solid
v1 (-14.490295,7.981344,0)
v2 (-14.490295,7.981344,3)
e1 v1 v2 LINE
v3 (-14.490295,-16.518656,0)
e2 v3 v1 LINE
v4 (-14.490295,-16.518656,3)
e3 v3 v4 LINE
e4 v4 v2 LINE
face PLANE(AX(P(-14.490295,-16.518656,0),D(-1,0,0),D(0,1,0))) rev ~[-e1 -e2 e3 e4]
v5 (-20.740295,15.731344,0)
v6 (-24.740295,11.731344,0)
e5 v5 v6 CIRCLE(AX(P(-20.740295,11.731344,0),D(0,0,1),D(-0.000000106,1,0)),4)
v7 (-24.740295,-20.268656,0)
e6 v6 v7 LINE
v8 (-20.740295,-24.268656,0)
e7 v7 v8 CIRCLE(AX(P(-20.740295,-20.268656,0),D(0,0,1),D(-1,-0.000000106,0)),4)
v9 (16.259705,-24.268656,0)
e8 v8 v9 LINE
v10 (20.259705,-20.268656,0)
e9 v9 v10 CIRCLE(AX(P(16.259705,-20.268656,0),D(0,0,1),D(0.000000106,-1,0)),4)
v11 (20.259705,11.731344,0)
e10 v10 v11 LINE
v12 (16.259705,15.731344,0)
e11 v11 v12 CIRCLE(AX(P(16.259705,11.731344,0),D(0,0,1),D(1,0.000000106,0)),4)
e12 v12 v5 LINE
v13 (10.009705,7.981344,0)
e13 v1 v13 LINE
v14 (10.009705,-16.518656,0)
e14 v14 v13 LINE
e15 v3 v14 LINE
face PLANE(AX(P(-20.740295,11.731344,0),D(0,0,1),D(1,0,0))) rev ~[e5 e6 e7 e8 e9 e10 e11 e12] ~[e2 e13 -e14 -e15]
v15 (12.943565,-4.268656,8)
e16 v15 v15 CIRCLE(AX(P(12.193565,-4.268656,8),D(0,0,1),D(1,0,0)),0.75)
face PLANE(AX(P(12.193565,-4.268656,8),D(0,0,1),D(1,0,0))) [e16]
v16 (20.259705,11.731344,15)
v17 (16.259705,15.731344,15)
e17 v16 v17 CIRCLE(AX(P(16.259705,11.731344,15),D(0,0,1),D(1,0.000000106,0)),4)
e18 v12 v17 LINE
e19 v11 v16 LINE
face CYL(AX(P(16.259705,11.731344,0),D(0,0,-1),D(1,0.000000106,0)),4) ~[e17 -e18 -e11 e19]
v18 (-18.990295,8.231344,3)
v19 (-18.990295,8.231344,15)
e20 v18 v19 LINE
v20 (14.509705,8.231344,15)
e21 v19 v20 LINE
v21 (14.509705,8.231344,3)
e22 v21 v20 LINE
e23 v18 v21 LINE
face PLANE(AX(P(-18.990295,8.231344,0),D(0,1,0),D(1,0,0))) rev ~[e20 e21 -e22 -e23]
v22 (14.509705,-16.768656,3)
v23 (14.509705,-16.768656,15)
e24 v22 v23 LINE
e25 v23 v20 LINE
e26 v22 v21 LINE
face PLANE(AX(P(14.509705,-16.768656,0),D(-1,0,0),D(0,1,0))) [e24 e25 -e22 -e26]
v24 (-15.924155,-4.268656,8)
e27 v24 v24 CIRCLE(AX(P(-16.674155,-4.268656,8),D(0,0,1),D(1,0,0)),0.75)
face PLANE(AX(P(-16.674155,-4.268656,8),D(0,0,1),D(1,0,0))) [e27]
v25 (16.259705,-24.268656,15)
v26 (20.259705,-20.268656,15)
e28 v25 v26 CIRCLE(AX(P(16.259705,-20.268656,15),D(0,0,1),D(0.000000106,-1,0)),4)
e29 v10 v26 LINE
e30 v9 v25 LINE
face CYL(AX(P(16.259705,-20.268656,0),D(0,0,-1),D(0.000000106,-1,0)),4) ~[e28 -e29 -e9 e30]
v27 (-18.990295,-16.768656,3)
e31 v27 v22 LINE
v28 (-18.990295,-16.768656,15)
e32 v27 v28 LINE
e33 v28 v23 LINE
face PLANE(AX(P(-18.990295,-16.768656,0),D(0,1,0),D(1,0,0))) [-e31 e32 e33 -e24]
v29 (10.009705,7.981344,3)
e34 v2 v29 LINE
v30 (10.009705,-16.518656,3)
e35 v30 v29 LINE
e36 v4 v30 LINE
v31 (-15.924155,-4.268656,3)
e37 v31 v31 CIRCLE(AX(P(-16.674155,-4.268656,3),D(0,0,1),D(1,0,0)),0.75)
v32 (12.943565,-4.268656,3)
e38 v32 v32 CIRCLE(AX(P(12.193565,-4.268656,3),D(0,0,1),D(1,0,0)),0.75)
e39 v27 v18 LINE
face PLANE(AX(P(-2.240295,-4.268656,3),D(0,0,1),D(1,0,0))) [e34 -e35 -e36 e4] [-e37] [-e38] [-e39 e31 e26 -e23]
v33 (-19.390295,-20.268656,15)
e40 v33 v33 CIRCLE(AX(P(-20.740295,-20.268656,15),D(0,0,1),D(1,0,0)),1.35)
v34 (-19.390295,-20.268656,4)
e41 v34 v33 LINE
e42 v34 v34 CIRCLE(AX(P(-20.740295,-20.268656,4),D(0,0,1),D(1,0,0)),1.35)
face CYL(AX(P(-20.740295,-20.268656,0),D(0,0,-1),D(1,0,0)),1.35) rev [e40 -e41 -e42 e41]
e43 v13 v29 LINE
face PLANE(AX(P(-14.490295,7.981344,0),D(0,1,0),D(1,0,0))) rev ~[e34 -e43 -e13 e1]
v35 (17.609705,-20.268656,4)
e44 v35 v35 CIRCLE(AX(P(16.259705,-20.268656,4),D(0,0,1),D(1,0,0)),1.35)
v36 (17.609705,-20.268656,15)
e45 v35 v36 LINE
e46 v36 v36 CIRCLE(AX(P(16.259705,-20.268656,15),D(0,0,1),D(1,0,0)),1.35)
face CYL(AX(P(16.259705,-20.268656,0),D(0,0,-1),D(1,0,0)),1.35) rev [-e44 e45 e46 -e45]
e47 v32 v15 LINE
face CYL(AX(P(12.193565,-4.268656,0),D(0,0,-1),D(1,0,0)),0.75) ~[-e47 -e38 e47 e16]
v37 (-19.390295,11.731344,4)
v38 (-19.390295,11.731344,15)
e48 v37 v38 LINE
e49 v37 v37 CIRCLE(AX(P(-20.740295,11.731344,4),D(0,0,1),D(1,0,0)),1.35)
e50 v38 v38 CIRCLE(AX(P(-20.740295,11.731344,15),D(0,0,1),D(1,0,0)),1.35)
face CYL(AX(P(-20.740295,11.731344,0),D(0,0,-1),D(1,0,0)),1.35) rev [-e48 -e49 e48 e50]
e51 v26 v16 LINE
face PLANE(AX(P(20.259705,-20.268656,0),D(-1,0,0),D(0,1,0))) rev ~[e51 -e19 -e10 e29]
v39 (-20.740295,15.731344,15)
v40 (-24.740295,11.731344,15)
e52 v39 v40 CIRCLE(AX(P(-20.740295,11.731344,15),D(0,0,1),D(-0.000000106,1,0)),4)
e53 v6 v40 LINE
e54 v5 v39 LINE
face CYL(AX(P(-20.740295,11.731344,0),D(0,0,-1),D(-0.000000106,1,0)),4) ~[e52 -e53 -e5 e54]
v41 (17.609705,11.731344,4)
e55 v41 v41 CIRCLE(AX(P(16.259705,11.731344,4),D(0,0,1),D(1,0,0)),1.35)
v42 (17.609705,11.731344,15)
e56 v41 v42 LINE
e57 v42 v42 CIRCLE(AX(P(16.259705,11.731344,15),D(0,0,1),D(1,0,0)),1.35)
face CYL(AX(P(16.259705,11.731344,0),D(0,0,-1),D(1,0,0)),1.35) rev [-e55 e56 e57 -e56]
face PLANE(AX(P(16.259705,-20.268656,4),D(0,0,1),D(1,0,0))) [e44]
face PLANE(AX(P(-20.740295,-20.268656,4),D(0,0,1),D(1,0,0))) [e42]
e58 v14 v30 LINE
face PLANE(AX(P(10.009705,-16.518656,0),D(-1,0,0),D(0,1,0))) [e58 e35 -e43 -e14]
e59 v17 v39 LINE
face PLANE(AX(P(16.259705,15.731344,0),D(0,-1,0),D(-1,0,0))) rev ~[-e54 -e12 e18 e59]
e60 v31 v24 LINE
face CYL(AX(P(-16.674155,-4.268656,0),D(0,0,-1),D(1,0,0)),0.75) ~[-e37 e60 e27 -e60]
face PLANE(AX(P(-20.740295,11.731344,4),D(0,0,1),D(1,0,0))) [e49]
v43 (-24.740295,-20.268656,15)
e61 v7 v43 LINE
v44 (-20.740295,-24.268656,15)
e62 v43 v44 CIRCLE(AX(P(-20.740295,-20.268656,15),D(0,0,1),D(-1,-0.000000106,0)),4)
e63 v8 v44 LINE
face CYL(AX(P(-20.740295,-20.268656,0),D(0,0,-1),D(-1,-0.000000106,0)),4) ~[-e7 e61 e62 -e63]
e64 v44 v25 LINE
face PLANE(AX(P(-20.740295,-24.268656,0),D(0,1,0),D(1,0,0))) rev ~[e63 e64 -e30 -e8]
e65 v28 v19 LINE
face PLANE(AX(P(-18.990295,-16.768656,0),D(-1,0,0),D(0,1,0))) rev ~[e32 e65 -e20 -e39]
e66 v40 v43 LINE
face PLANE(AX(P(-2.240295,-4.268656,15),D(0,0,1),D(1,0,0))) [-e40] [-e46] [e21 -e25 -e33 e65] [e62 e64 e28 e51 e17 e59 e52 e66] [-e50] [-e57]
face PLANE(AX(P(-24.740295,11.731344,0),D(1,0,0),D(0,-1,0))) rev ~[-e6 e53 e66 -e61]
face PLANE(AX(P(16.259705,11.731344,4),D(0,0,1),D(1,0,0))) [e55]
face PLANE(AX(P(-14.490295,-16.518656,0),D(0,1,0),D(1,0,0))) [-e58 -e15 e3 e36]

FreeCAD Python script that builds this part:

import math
import FreeCAD as App
import Part
import Sketcher
from FreeCAD import Vector

doc = App.newDocument("Part")
body = doc.addObject("PartDesign::Body", "Body")

# Sketch on XY plane
sketch1 = doc.addObject("Sketcher::SketchObject", "Sketch")
body.addObject(sketch1)
sketch1.AttachmentSupport = (doc.XY_Plane, [""])
sketch1.MapMode = "FlatFace"
sketch1.addGeometry([
    Part.ArcOfCircle(Part.Circle(Vector(-20.740295, 11.731344, 0), Vector(0, 0, 1), 4), math.radians(90.000006), math.radians(179.999994)),  # 0
    Part.LineSegment(Vector(-24.740295, 11.731344, 0), Vector(-24.740295, -20.268656, 0)),  # 1
    Part.ArcOfCircle(Part.Circle(Vector(-20.740295, -20.268656, 0), Vector(0, 0, 1), 4), math.radians(-179.999994), math.radians(-90.000006)),  # 2
    Part.LineSegment(Vector(-20.740295, -24.268656, 0), Vector(16.259705, -24.268656, 0)),  # 3
    Part.ArcOfCircle(Part.Circle(Vector(16.259705, -20.268656, 0), Vector(0, 0, 1), 4), math.radians(-89.999994), math.radians(-0.000006)),  # 4
    Part.LineSegment(Vector(20.259705, -20.268656, 0), Vector(20.259705, 11.731344, 0)),  # 5
    Part.ArcOfCircle(Part.Circle(Vector(16.259705, 11.731344, 0), Vector(0, 0, 1), 4), math.radians(0.000006), math.radians(89.999994)),  # 6
    Part.LineSegment(Vector(16.259705, 15.731344, 0), Vector(-20.740295, 15.731344, 0)),  # 7
    Part.Circle(Vector(-20.740295, -20.268656, 0), Vector(0, 0, 1), 1.35),  # 8
    Part.Circle(Vector(16.259705, -20.268656, 0), Vector(0, 0, 1), 1.35),  # 9
    Part.Circle(Vector(-20.740295, 11.731344, 0), Vector(0, 0, 1), 1.35),  # 10
    Part.LineSegment(Vector(14.509705, -16.768656, 0), Vector(-18.990295, -16.768656, 0)),  # 11
    Part.LineSegment(Vector(-18.990295, -16.768656, 0), Vector(-18.990295, 8.231344, 0)),  # 12
    Part.LineSegment(Vector(-18.990295, 8.231344, 0), Vector(14.509705, 8.231344, 0)),  # 13
    Part.LineSegment(Vector(14.509705, 8.231344, 0), Vector(14.509705, -16.768656, 0)),  # 14
    Part.Circle(Vector(16.259705, 11.731344, 0), Vector(0, 0, 1), 1.35),  # 15
], False)
sketch1.addConstraint([
    Sketcher.Constraint("Tangent", 0, 2, 1, 1),
    Sketcher.Constraint("Tangent", 1, 2, 2, 1),
    Sketcher.Constraint("Tangent", 2, 2, 3, 1),
    Sketcher.Constraint("Tangent", 3, 2, 4, 1),
    Sketcher.Constraint("Tangent", 4, 2, 5, 1),
    Sketcher.Constraint("Tangent", 5, 2, 6, 1),
    Sketcher.Constraint("Tangent", 6, 2, 7, 1),
    Sketcher.Constraint("Tangent", 7, 2, 0, 1),
    Sketcher.Constraint("Coincident", 11, 2, 12, 1),
    Sketcher.Constraint("Coincident", 12, 2, 13, 1),
    Sketcher.Constraint("Coincident", 13, 2, 14, 1),
    Sketcher.Constraint("Coincident", 14, 2, 11, 1),
    Sketcher.Constraint("Vertical", 1),
    Sketcher.Constraint("Horizontal", 3),
    Sketcher.Constraint("Vertical", 5),
    Sketcher.Constraint("Horizontal", 7),
    Sketcher.Constraint("Horizontal", 11),
    Sketcher.Constraint("Vertical", 12),
    Sketcher.Constraint("Horizontal", 13),
    Sketcher.Constraint("Vertical", 14),
    Sketcher.Constraint("Coincident", 8, 3, 2, 3),
    Sketcher.Constraint("Coincident", 9, 3, 4, 3),
    Sketcher.Constraint("Coincident", 10, 3, 0, 3),
    Sketcher.Constraint("Coincident", 15, 3, 6, 3),
    Sketcher.Constraint("Equal", 0, 2),
    Sketcher.Constraint("Equal", 2, 4),
    Sketcher.Constraint("Equal", 4, 6),
    Sketcher.Constraint("Equal", 8, 9),
    Sketcher.Constraint("Equal", 9, 10),
    Sketcher.Constraint("Equal", 10, 15),
    Sketcher.Constraint("Radius", 0, 4.0),
    Sketcher.Constraint("Diameter", 8, 2.7),
    Sketcher.Constraint("DistanceX", 3, 1, 3, 2, 37.0),
    Sketcher.Constraint("DistanceY", 1, 2, 1, 1, 32.0),
    Sketcher.Constraint("DistanceY", 12, 1, 12, 2, 25.0),
    Sketcher.Constraint("DistanceX", 11, 2, 11, 1, 33.5),
    Sketcher.Constraint("DistanceY", 2, 3, 11, 2, 3.5),
    Sketcher.Constraint("DistanceX", 2, 3, 11, 2, 1.75),
    Sketcher.Constraint("DistanceX", 0, 3, -1, 1, 20.740295),
    Sketcher.Constraint("DistanceY", -1, 1, 0, 3, 11.731344),
])
pad1 = doc.addObject("PartDesign::Pad", "Pad")
body.addObject(pad1)
pad1.Profile = sketch1
pad1.Length = 15

# Sketch on XY plane
sketch2 = doc.addObject("Sketcher::SketchObject", "Sketch001")
body.addObject(sketch2)
sketch2.AttachmentSupport = (doc.XY_Plane, [""])
sketch2.MapMode = "FlatFace"
sketch2.addGeometry([
    Part.LineSegment(Vector(-18.990295, 8.231344, 0), Vector(-18.990295, -16.768656, 0)),  # 0
    Part.LineSegment(Vector(-18.990295, -16.768656, 0), Vector(14.509705, -16.768656, 0)),  # 1
    Part.LineSegment(Vector(14.509705, -16.768656, 0), Vector(14.509705, 8.231344, 0)),  # 2
    Part.LineSegment(Vector(14.509705, 8.231344, 0), Vector(-18.990295, 8.231344, 0)),  # 3
    Part.Circle(Vector(-16.674155, -4.268656, 0), Vector(0, 0, 1), 0.75),  # 4
    Part.LineSegment(Vector(10.009705, -16.518656, 0), Vector(-14.490295, -16.518656, 0)),  # 5
    Part.LineSegment(Vector(-14.490295, -16.518656, 0), Vector(-14.490295, 7.981344, 0)),  # 6
    Part.LineSegment(Vector(-14.490295, 7.981344, 0), Vector(10.009705, 7.981344, 0)),  # 7
    Part.LineSegment(Vector(10.009705, 7.981344, 0), Vector(10.009705, -16.518656, 0)),  # 8
    Part.Circle(Vector(12.193565, -4.268656, 0), Vector(0, 0, 1), 0.75),  # 9
], False)
sketch2.addConstraint([
    Sketcher.Constraint("Coincident", 0, 2, 1, 1),
    Sketcher.Constraint("Coincident", 1, 2, 2, 1),
    Sketcher.Constraint("Coincident", 2, 2, 3, 1),
    Sketcher.Constraint("Coincident", 3, 2, 0, 1),
    Sketcher.Constraint("Coincident", 5, 2, 6, 1),
    Sketcher.Constraint("Coincident", 6, 2, 7, 1),
    Sketcher.Constraint("Coincident", 7, 2, 8, 1),
    Sketcher.Constraint("Coincident", 8, 2, 5, 1),
    Sketcher.Constraint("Vertical", 0),
    Sketcher.Constraint("Horizontal", 1),
    Sketcher.Constraint("Vertical", 2),
    Sketcher.Constraint("Horizontal", 3),
    Sketcher.Constraint("Horizontal", 5),
    Sketcher.Constraint("Vertical", 6),
    Sketcher.Constraint("Horizontal", 7),
    Sketcher.Constraint("Vertical", 8),
    Sketcher.Constraint("Equal", 4, 9),
    Sketcher.Constraint("Horizontal", 4, 3, 9, 3),
    Sketcher.Constraint("Equal", 7, 6),
    Sketcher.Constraint("Diameter", 4, 1.5),
    Sketcher.Constraint("DistanceY", 0, 2, 0, 1, 25.0),
    Sketcher.Constraint("DistanceX", 1, 1, 1, 2, 33.5),
    Sketcher.Constraint("DistanceX", 5, 2, 5, 1, 24.5),
    Sketcher.Constraint("DistanceX", 5, 2, 1, 2, 29.0),
    Sketcher.Constraint("DistanceY", 0, 2, 4, 3, 12.5),
    Sketcher.Constraint("DistanceY", 0, 2, 5, 2, 0.25),
    Sketcher.Constraint("DistanceX", 4, 3, 9, 3, 28.86772),
    Sketcher.Constraint("DistanceX", 0, 2, 4, 3, 2.31614),
    Sketcher.Constraint("DistanceX", 4, 3, -1, 1, 16.674155),
    Sketcher.Constraint("DistanceY", 4, 3, -1, 1, 4.268656),
])
pad2 = doc.addObject("PartDesign::Pad", "Pad001")
body.addObject(pad2)
pad2.Profile = sketch2
pad2.Length = 3

# Sketch on XY plane
sketch3 = doc.addObject("Sketcher::SketchObject", "Sketch002")
body.addObject(sketch3)
sketch3.AttachmentSupport = (doc.XY_Plane, [""])
sketch3.MapMode = "FlatFace"
sketch3.addGeometry([
    Part.Circle(Vector(-16.674155, -4.268656, 0), Vector(0, 0, 1), 0.75),
    Part.Circle(Vector(12.193565, -4.268656, 0), Vector(0, 0, 1), 0.75),
], False)
sketch3.addConstraint([
    Sketcher.Constraint("Equal", 0, 1),
    Sketcher.Constraint("Horizontal", 0, 3, 1, 3),
    Sketcher.Constraint("Diameter", 0, 1.5),
    Sketcher.Constraint("DistanceX", 0, 3, 1, 3, 28.86772),
    Sketcher.Constraint("DistanceX", 0, 3, -1, 1, 16.674155),
    Sketcher.Constraint("DistanceY", 0, 3, -1, 1, 4.268656),
])
pad3 = doc.addObject("PartDesign::Pad", "Pad002")
body.addObject(pad3)
pad3.Profile = sketch3
pad3.Length = 8

# Sketch on XY plane
sketch4 = doc.addObject("Sketcher::SketchObject", "Sketch003")
body.addObject(sketch4)
sketch4.AttachmentSupport = (doc.XY_Plane, [""])
sketch4.MapMode = "FlatFace"
sketch4.addGeometry([
    Part.Circle(Vector(-20.740295, 11.731344, 0), Vector(0, 0, 1), 1.35),
    Part.Circle(Vector(16.259705, 11.731344, 0), Vector(0, 0, 1), 1.35),
    Part.Circle(Vector(16.259705, -20.268656, 0), Vector(0, 0, 1), 1.35),
    Part.Circle(Vector(-20.740295, -20.268656, 0), Vector(0, 0, 1), 1.35),
], False)
sketch4.addConstraint([
    Sketcher.Constraint("Equal", 0, 1),
    Sketcher.Constraint("Equal", 1, 2),
    Sketcher.Constraint("Equal", 2, 3),
    Sketcher.Constraint("Horizontal", 0, 3, 1, 3),
    Sketcher.Constraint("Horizontal", 2, 3, 3, 3),
    Sketcher.Constraint("Vertical", 1, 3, 2, 3),
    Sketcher.Constraint("Vertical", 0, 3, 3, 3),
    Sketcher.Constraint("Diameter", 0, 2.7),
    Sketcher.Constraint("DistanceX", 0, 3, 1, 3, 37.0),
    Sketcher.Constraint("DistanceY", 2, 3, 1, 3, 32.0),
    Sketcher.Constraint("DistanceX", 0, 3, -1, 1, 20.740295),
    Sketcher.Constraint("DistanceY", -1, 1, 0, 3, 11.731344),
])
pad4 = doc.addObject("PartDesign::Pad", "Pad003")
body.addObject(pad4)
pad4.Profile = sketch4
pad4.Length = 4

doc.recompute()
